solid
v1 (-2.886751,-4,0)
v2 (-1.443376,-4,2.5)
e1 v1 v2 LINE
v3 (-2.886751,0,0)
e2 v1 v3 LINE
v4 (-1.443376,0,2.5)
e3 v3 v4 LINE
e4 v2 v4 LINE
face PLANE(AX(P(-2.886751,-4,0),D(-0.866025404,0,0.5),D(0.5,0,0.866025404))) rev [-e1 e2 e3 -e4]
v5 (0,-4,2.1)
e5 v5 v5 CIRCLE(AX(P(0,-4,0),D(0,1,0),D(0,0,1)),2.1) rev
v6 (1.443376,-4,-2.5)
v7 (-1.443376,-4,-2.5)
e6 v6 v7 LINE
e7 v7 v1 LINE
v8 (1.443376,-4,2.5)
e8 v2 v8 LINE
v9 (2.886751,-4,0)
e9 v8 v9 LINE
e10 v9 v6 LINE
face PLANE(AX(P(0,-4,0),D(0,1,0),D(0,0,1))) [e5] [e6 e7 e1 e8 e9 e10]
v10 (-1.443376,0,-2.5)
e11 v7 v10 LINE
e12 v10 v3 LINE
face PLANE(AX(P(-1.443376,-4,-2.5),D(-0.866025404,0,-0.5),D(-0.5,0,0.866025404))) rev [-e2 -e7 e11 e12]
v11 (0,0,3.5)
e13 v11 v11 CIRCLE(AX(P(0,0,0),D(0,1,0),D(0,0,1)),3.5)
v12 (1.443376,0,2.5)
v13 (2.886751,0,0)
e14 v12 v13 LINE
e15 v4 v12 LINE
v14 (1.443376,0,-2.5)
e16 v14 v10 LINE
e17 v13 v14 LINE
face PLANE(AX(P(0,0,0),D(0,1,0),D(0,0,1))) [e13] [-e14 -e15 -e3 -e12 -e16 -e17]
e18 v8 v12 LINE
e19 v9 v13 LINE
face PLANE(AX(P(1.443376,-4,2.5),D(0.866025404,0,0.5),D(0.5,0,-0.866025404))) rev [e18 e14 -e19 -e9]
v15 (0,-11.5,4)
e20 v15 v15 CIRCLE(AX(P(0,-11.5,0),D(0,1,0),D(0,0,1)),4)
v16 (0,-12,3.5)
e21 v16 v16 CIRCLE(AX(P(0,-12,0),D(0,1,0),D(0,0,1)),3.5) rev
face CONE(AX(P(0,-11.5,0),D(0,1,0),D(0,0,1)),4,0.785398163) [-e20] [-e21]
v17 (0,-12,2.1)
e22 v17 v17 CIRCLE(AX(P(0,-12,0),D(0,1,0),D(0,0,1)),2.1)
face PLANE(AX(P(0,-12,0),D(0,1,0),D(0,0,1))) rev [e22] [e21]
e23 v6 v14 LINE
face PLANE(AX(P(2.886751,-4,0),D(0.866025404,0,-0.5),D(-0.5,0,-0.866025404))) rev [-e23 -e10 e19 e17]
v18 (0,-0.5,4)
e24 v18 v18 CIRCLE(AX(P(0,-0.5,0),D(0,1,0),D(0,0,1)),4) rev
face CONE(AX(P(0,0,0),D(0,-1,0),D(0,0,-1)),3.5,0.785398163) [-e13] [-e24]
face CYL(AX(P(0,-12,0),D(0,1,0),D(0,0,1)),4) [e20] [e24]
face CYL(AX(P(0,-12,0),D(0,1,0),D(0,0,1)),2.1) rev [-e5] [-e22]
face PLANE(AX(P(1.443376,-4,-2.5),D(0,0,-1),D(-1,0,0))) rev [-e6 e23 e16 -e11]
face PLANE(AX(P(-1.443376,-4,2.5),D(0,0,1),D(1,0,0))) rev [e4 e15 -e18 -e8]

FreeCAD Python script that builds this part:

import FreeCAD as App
import Part
import Sketcher

V = App.Vector
Q = App.Units.Quantity


def edges_at(feature, points):
    """Names of the edges that pass closest to the given points."""
    edges = feature.Shape.Edges
    near = lambda p: min(range(len(edges)), key=lambda i: edges[i].distToShape(Part.Vertex(*p))[0])
    return sorted({f"Edge{near(p) + 1}" for p in points})


def add_polygon(sketch, points):
    """Adds a closed chain of lines whose ends are joined by coincident constraints."""
    first, n = sketch.GeometryCount, len(points)
    for a, b in zip(points, points[1:] + points[:1]):
        sketch.addGeometry(Part.LineSegment(App.Vector(*a, 0), App.Vector(*b, 0)), False)
    for i in range(n):
        sketch.addConstraint(Sketcher.Constraint("Coincident", first + i, 2, first + (i + 1) % n, 1))

doc = App.newDocument("Part")
body = doc.addObject("PartDesign::Body", "Body")

# Sketch on XZ plane
sketch1 = body.newObject("Sketcher::SketchObject", "Sketch")
sketch1.AttachmentSupport = (doc.getObject("XZ_Plane"), [""])
sketch1.MapMode = "FlatFace"
sketch1.addGeometry(Part.Circle(V(0, 0, 0), V(0, 0, 1), 4), False)
sketch1.addConstraint(Sketcher.Constraint("Coincident", 0, 3, -1, 1))
sketch1.addConstraint(Sketcher.Constraint("Diameter", 0, 8.0))
pad1 = body.newObject("PartDesign::Pad", "Pad")
pad1.Profile = sketch1
pad1.Length = 12

# Sketch on XZ plane
sketch2 = body.newObject("Sketcher::SketchObject", "Sketch001")
sketch2.AttachmentSupport = (doc.getObject("XZ_Plane"), [""])
sketch2.MapMode = "FlatFace"
sketch2.addGeometry(Part.Circle(V(0, 0, 0), V(0, 0, 1), 2.1), False)
sketch2.addConstraint(Sketcher.Constraint("Coincident", 0, 3, -1, 1))
sketch2.addConstraint(Sketcher.Constraint("Diameter", 0, 4.2))
pocket1 = body.newObject("PartDesign::Pocket", "Pocket")
pocket1.Profile = sketch2
pocket1.Type = "ThroughAll"
pocket1.Reversed = True

# Sketch on XZ plane
sketch3 = body.newObject("Sketcher::SketchObject", "Sketch002")
sketch3.AttachmentSupport = (doc.getObject("XZ_Plane"), [""])
sketch3.MapMode = "FlatFace"
add_polygon(sketch3, [(2.9, 0), (1.4, -2.5), (-1.4, -2.5), (-2.9, 0), (-1.4, 2.5), (1.4, 2.5)])  # lines 0-5
sketch3.addConstraint(Sketcher.Constraint("Horizontal", 1))
sketch3.addConstraint(Sketcher.Constraint("Horizontal", 4))
sketch3.addConstraint(Sketcher.Constraint("Symmetric", 0, 2, 3, 2, -1, 1))
sketch3.addConstraint(Sketcher.Constraint("Symmetric", 2, 2, 5, 2, -1, 1))
sketch3.addConstraint(Sketcher.Constraint("PointOnObject", 2, 2, -1))
sketch3.addConstraint(Sketcher.Constraint("Parallel", 2, 5))
sketch3.addConstraint(Sketcher.Constraint("Vertical", 1, 2, 3, 2))
sketch3.addConstraint(Sketcher.Constraint("Angle", 0, Q("-120 deg")))
sketch3.addConstraint(Sketcher.Constraint("DistanceY", 1, 2, 3, 2, 5.0))
sketch3.addConstraint(Sketcher.Constraint("DistanceX", 1, 2, 1, 1, 2.886751))
pocket2 = body.newObject("PartDesign::Pocket", "Pocket001")
pocket2.Profile = sketch3
pocket2.Length = 4
pocket2.Reversed = True
doc.recompute()

chamfer = body.newObject("PartDesign::Chamfer", "Chamfer")
chamfer.Base = (pocket2, edges_at(pocket2, [(0, 0, -4), (0, -12, -4)]))
chamfer.Size = 0.5

doc.recompute()
